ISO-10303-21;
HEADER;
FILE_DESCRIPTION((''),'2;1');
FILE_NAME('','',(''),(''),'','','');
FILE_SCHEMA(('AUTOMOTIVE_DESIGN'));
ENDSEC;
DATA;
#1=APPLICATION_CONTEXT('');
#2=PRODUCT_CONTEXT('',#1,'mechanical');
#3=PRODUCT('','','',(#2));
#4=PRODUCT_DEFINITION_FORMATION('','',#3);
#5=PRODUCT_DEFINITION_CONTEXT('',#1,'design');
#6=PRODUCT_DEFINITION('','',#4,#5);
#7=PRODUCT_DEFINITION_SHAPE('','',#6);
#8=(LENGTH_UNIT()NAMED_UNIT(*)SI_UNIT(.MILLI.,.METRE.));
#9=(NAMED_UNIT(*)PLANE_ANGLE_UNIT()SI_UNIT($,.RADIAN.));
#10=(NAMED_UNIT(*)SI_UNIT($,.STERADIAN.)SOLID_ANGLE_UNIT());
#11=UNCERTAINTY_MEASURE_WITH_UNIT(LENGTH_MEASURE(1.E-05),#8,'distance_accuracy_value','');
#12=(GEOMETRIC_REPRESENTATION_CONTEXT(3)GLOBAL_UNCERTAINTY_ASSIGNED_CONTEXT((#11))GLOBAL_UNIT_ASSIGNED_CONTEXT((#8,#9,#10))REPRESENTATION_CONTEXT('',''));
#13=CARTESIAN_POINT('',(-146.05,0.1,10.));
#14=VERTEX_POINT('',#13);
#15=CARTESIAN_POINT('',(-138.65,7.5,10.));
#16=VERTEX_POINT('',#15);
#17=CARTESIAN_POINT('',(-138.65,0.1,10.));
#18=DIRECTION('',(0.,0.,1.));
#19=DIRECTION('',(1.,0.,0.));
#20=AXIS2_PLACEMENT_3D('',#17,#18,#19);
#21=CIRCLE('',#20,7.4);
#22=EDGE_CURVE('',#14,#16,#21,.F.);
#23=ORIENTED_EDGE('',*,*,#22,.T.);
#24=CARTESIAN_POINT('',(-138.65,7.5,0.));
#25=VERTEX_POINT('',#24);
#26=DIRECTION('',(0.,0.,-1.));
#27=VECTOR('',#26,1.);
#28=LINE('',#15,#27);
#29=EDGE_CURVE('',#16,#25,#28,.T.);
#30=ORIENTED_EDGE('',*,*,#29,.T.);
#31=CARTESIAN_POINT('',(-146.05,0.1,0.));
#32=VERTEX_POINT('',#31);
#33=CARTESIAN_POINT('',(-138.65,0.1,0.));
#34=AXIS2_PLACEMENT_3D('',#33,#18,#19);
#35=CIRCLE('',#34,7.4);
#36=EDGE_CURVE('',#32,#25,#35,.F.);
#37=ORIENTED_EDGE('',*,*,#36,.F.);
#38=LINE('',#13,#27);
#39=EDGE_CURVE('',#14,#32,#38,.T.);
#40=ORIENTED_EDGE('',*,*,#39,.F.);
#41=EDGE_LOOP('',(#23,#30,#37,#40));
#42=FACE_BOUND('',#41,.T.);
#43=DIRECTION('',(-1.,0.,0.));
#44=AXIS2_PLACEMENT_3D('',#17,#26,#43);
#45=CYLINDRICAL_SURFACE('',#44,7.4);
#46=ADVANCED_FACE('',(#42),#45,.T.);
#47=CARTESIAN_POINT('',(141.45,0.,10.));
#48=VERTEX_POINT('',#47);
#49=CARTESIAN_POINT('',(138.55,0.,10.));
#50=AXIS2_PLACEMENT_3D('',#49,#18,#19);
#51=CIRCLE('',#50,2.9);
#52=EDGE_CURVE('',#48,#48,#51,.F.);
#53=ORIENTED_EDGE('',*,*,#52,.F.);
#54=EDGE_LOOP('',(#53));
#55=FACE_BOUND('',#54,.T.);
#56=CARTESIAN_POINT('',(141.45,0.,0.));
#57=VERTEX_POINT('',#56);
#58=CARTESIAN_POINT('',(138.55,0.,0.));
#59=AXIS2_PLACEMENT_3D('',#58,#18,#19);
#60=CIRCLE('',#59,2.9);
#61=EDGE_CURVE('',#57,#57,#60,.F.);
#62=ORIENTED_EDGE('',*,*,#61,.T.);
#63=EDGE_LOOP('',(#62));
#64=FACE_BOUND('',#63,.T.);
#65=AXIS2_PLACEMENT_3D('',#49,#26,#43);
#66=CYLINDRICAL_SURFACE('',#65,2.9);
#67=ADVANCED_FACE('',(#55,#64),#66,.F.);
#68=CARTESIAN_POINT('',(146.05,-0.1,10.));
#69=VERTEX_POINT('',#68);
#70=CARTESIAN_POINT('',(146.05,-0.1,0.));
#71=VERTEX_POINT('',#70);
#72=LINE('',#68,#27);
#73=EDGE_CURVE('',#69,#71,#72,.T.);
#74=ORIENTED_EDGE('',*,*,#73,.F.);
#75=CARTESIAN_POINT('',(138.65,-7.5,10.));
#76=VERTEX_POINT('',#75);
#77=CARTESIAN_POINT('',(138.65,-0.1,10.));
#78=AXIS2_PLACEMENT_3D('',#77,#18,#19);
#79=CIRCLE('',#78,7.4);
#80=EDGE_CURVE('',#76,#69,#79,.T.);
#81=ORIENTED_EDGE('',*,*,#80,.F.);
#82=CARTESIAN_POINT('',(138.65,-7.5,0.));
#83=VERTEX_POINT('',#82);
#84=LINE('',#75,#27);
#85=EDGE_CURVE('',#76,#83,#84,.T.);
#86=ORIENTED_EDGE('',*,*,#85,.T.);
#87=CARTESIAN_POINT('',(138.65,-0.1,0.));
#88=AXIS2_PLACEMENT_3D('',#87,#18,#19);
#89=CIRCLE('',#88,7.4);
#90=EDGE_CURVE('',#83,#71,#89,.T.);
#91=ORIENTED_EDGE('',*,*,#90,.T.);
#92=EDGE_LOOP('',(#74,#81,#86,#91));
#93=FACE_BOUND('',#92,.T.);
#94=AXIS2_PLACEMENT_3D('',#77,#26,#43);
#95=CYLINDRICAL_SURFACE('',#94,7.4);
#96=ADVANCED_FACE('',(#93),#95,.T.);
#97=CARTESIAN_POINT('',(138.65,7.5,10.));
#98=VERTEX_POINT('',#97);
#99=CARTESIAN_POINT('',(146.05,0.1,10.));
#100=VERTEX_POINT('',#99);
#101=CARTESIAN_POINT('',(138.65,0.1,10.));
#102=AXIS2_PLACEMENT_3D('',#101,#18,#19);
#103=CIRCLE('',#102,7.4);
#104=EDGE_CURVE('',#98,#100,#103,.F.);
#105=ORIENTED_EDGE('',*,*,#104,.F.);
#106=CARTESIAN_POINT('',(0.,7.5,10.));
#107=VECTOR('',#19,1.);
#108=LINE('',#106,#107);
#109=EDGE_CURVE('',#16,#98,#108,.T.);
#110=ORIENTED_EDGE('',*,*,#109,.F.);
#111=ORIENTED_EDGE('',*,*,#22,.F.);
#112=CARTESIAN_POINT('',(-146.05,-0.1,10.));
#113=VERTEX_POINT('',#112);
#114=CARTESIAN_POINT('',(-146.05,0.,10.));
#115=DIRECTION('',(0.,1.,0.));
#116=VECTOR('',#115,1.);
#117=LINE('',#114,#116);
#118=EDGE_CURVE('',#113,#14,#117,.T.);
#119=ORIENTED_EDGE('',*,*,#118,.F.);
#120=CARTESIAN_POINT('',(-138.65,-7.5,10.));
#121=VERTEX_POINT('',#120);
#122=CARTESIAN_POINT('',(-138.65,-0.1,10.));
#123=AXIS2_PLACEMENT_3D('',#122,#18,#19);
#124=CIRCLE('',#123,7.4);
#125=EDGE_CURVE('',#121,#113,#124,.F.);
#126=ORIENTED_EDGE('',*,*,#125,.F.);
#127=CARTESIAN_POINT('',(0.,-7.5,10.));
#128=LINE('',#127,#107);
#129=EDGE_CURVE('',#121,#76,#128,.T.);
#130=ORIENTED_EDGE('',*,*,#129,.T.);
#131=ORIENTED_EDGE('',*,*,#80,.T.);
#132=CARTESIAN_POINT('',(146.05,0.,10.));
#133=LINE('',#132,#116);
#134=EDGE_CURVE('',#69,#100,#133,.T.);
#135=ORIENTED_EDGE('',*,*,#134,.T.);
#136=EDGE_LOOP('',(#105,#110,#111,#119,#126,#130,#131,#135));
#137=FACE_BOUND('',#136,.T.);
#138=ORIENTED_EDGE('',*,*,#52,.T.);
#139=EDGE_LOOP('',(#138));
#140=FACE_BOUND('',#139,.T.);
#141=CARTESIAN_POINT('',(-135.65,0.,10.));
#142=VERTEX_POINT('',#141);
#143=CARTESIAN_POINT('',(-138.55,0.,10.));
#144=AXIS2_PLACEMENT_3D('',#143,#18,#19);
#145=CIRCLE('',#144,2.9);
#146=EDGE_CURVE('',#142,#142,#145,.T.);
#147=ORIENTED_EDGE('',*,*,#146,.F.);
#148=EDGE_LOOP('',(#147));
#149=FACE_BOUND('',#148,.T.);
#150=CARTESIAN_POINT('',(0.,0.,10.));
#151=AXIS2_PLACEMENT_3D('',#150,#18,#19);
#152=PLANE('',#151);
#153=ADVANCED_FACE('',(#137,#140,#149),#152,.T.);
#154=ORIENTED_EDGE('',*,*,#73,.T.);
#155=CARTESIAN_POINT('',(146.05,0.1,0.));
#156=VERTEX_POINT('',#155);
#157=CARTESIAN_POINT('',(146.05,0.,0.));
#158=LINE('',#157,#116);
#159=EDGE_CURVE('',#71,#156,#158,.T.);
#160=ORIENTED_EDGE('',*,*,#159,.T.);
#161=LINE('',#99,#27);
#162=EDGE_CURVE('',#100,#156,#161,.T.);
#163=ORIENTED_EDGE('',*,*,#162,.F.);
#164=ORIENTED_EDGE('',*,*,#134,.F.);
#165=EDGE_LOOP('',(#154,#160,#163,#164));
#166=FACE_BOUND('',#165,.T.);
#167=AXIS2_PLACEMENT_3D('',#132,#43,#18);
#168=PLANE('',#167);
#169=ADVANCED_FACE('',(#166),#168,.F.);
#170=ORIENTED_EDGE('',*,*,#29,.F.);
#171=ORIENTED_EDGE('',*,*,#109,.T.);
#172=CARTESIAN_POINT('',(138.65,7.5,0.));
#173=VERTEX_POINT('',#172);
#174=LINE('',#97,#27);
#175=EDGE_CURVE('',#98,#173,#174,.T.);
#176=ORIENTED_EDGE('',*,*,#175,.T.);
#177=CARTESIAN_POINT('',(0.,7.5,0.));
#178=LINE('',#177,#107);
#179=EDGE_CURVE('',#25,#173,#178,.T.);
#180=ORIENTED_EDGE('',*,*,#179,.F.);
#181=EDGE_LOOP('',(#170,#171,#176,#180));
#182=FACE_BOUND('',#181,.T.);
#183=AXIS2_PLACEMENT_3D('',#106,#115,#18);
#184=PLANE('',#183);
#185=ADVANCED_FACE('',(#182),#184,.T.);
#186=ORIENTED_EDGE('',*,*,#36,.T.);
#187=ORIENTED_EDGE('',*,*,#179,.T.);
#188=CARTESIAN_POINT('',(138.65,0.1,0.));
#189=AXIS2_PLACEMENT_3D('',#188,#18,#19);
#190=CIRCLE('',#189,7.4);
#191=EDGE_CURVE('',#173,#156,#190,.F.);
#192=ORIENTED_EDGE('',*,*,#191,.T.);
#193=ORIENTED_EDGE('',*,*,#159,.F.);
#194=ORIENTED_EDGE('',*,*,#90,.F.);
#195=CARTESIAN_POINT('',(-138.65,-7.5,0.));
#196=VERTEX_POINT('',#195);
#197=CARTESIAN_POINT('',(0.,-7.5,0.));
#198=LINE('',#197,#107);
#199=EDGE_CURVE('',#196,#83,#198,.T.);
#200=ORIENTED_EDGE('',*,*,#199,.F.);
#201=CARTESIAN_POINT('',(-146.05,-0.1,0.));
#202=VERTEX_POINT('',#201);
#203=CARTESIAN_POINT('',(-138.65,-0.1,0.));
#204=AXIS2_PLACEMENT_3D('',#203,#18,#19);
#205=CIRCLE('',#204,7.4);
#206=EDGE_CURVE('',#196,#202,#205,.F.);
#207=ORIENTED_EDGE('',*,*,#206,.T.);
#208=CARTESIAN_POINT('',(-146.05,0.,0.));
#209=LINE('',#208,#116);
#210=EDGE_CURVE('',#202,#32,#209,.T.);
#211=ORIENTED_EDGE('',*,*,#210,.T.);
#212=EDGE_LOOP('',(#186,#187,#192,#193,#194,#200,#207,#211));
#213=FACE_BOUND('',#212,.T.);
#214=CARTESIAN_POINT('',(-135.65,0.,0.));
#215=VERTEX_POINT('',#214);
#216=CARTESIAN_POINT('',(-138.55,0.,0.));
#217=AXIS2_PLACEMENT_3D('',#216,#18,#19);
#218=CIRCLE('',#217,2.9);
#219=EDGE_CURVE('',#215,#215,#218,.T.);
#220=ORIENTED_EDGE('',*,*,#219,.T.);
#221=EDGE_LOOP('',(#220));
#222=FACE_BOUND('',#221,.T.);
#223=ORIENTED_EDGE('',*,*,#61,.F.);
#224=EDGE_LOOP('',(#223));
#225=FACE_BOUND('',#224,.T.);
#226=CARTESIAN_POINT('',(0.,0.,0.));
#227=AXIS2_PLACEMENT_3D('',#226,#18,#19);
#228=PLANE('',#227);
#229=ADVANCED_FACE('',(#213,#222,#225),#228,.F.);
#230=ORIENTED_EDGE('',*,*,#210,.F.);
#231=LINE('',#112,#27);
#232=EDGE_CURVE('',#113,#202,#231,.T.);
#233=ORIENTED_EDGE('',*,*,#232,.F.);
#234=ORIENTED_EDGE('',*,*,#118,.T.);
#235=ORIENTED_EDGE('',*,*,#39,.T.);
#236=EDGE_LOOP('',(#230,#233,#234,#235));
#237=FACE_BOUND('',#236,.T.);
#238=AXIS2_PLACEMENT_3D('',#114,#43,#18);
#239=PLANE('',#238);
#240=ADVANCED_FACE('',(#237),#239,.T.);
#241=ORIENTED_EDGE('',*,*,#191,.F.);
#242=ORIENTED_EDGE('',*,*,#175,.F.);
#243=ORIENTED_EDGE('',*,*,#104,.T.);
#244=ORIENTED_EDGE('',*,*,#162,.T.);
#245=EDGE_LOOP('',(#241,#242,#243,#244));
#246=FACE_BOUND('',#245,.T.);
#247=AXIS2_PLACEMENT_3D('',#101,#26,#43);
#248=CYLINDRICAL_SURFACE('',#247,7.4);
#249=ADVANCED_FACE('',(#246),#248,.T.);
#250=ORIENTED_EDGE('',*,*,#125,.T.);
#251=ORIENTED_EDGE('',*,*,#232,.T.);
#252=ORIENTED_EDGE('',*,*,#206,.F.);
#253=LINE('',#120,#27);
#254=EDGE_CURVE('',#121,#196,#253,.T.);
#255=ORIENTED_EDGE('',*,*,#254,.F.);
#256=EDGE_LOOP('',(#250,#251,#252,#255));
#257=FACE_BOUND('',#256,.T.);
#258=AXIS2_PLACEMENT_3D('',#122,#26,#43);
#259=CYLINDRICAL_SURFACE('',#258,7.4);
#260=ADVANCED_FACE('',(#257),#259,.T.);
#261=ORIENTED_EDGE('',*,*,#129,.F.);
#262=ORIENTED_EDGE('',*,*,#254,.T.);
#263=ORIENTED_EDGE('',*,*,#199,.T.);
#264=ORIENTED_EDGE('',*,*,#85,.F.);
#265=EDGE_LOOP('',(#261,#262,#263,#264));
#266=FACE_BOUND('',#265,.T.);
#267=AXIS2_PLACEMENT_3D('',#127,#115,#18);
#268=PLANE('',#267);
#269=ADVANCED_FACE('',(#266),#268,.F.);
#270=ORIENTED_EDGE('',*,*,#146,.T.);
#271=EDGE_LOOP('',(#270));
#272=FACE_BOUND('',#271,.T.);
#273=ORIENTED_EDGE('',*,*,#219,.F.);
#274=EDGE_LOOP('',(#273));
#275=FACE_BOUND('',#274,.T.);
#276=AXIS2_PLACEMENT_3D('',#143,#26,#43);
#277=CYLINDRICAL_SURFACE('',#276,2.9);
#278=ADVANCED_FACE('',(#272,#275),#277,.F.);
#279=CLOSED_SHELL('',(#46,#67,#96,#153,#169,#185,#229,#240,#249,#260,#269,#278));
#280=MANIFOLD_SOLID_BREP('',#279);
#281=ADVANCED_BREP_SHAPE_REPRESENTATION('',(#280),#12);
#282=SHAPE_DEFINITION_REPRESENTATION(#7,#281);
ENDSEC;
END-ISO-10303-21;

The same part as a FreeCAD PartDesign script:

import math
import FreeCAD as App
import Part
import Sketcher
from FreeCAD import Vector

doc = App.newDocument("Part")
body = doc.addObject("PartDesign::Body", "Body")

# Sketch on XY plane
sketch1 = body.newObject("Sketcher::SketchObject", "Sketch")
sketch1.AttachmentSupport = (doc.getObject("XY_Plane"), [""])
sketch1.MapMode = "FlatFace"
sketch1.addGeometry([
    Part.LineSegment(Vector(-138.65, -7.5, 0), Vector(138.65, -7.5, 0)),  # 0
    Part.ArcOfCircle(Part.Circle(Vector(138.65, -0.1, 0), Vector(0, 0, 1), 7.4), math.radians(-90), math.radians(0)),  # 1
    Part.LineSegment(Vector(146.05, -0.1, 0), Vector(146.05, 0.1, 0)),  # 2
    Part.ArcOfCircle(Part.Circle(Vector(138.65, 0.1, 0), Vector(0, 0, 1), 7.4), math.radians(0), math.radians(90)),  # 3
    Part.LineSegment(Vector(138.65, 7.5, 0), Vector(-138.65, 7.5, 0)),  # 4
    Part.ArcOfCircle(Part.Circle(Vector(-138.65, 0.1, 0), Vector(0, 0, 1), 7.4), math.radians(90), math.radians(180)),  # 5
    Part.LineSegment(Vector(-146.05, 0.1, 0), Vector(-146.05, -0.1, 0)),  # 6
    Part.ArcOfCircle(Part.Circle(Vector(-138.65, -0.1, 0), Vector(0, 0, 1), 7.4), math.radians(180), math.radians(270)),  # 7
    Part.Circle(Vector(-138.55, 0, 0), Vector(0, 0, 1), 2.9),  # 8
    Part.Circle(Vector(138.55, 0, 0), Vector(0, 0, 1), 2.9),  # 9
], False)
sketch1.addConstraint([
    Sketcher.Constraint("Tangent", 0, 2, 1, 1),
    Sketcher.Constraint("Tangent", 1, 2, 2, 1),
    Sketcher.Constraint("Tangent", 2, 2, 3, 1),
    Sketcher.Constraint("Tangent", 3, 2, 4, 1),
    Sketcher.Constraint("Tangent", 4, 2, 5, 1),
    Sketcher.Constraint("Tangent", 5, 2, 6, 1),
    Sketcher.Constraint("Tangent", 6, 2, 7, 1),
    Sketcher.Constraint("Tangent", 7, 2, 0, 1),
    Sketcher.Constraint("Horizontal", 0),
    Sketcher.Constraint("Vertical", 2),
    Sketcher.Constraint("Horizontal", 4),
    Sketcher.Constraint("Vertical", 6),
    Sketcher.Constraint("Equal", 1, 3),
    Sketcher.Constraint("Equal", 3, 5),
    Sketcher.Constraint("Equal", 5, 7),
    Sketcher.Constraint("Equal", 8, 9),
    Sketcher.Constraint("Symmetric", 1, 3, 5, 3, -1, 1),
    Sketcher.Constraint("Symmetric", 8, 3, 9, 3, -1, 1),
    Sketcher.Constraint("PointOnObject", 8, 3, -1),
    Sketcher.Constraint("Diameter", 8, 5.8),
    Sketcher.Constraint("Radius", 1, 7.4),
    Sketcher.Constraint("DistanceX", 0, 1, 0, 2, 277.3),
    Sketcher.Constraint("DistanceY", 2, 1, 2, 2, 0.2),
    Sketcher.Constraint("DistanceX", 5, 3, 8, 3, 0.1),
])
pad1 = body.newObject("PartDesign::Pad", "Pad")
pad1.Profile = sketch1
pad1.Length = 10

doc.recompute()
